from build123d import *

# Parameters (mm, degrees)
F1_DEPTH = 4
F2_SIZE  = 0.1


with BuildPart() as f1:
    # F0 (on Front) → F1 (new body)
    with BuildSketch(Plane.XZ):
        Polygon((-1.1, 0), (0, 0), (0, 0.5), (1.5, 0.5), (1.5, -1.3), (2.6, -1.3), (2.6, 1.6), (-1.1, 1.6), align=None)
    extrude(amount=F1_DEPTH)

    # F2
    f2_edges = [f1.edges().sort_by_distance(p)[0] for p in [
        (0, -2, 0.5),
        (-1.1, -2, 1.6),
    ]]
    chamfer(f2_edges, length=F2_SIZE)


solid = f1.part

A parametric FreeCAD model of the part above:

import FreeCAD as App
import Part
import Sketcher

V = App.Vector


def edges_at(feature, points):
    """Names of the edges that pass closest to the given points."""
    edges = feature.Shape.Edges
    near = lambda p: min(range(len(edges)), key=lambda i: edges[i].distToShape(Part.Vertex(*p))[0])
    return sorted({f"Edge{near(p) + 1}" for p in points})


def add_polygon(sketch, points):
    """Adds a closed chain of lines whose ends are joined by coincident constraints."""
    first, n = sketch.GeometryCount, len(points)
    for a, b in zip(points, points[1:] + points[:1]):
        sketch.addGeometry(Part.LineSegment(App.Vector(*a, 0), App.Vector(*b, 0)), False)
    for i in range(n):
        sketch.addConstraint(Sketcher.Constraint("Coincident", first + i, 2, first + (i + 1) % n, 1))

doc = App.newDocument("Part")
body = doc.addObject("PartDesign::Body", "Body")

sketch1 = body.newObject("Sketcher::SketchObject", "Sketch")
sketch1.AttachmentSupport = (doc.getObject("XZ_Plane"), [""])
sketch1.MapMode = "FlatFace"
add_polygon(sketch1, [(-1.1, 0), (0, 0), (0, 0.5), (1.5, 0.5), (1.5, -1.3), (2.6, -1.3), (2.6, 1.6), (-1.1, 1.6)])
sketch1.addConstraint(Sketcher.Constraint("Horizontal", 0))
sketch1.addConstraint(Sketcher.Constraint("Vertical", 1))
sketch1.addConstraint(Sketcher.Constraint("Horizontal", 2))
sketch1.addConstraint(Sketcher.Constraint("Vertical", 3))
sketch1.addConstraint(Sketcher.Constraint("Horizontal", 4))
sketch1.addConstraint(Sketcher.Constraint("Vertical", 5))
sketch1.addConstraint(Sketcher.Constraint("Horizontal", 6))
sketch1.addConstraint(Sketcher.Constraint("Vertical", 7))
sketch1.addConstraint(Sketcher.Constraint("Coincident", 0, 2, -1, 1))
sketch1.addConstraint(Sketcher.Constraint("Equal", 0, 4))
sketch1.addConstraint(Sketcher.Constraint("DistanceX", 0, 1, 0, 2, 1.1))
sketch1.addConstraint(Sketcher.Constraint("DistanceX", 2, 1, 2, 2, 1.5))
sketch1.addConstraint(Sketcher.Constraint("DistanceY", 1, 1, 1, 2, 0.5))
sketch1.addConstraint(Sketcher.Constraint("DistanceY", 3, 2, 3, 1, 1.8))
sketch1.addConstraint(Sketcher.Constraint("DistanceY", 5, 1, 5, 2, 2.9))
pad1 = body.newObject("PartDesign::Pad", "Pad")
pad1.Profile = sketch1
pad1.Length = 4
doc.recompute()

chamfer = body.newObject("PartDesign::Chamfer", "Chamfer")
chamfer.Base = (pad1, edges_at(pad1, [(0, -2, 0.5), (-1.1, -2, 1.6)]))
chamfer.Size = 0.1

doc.recompute()
